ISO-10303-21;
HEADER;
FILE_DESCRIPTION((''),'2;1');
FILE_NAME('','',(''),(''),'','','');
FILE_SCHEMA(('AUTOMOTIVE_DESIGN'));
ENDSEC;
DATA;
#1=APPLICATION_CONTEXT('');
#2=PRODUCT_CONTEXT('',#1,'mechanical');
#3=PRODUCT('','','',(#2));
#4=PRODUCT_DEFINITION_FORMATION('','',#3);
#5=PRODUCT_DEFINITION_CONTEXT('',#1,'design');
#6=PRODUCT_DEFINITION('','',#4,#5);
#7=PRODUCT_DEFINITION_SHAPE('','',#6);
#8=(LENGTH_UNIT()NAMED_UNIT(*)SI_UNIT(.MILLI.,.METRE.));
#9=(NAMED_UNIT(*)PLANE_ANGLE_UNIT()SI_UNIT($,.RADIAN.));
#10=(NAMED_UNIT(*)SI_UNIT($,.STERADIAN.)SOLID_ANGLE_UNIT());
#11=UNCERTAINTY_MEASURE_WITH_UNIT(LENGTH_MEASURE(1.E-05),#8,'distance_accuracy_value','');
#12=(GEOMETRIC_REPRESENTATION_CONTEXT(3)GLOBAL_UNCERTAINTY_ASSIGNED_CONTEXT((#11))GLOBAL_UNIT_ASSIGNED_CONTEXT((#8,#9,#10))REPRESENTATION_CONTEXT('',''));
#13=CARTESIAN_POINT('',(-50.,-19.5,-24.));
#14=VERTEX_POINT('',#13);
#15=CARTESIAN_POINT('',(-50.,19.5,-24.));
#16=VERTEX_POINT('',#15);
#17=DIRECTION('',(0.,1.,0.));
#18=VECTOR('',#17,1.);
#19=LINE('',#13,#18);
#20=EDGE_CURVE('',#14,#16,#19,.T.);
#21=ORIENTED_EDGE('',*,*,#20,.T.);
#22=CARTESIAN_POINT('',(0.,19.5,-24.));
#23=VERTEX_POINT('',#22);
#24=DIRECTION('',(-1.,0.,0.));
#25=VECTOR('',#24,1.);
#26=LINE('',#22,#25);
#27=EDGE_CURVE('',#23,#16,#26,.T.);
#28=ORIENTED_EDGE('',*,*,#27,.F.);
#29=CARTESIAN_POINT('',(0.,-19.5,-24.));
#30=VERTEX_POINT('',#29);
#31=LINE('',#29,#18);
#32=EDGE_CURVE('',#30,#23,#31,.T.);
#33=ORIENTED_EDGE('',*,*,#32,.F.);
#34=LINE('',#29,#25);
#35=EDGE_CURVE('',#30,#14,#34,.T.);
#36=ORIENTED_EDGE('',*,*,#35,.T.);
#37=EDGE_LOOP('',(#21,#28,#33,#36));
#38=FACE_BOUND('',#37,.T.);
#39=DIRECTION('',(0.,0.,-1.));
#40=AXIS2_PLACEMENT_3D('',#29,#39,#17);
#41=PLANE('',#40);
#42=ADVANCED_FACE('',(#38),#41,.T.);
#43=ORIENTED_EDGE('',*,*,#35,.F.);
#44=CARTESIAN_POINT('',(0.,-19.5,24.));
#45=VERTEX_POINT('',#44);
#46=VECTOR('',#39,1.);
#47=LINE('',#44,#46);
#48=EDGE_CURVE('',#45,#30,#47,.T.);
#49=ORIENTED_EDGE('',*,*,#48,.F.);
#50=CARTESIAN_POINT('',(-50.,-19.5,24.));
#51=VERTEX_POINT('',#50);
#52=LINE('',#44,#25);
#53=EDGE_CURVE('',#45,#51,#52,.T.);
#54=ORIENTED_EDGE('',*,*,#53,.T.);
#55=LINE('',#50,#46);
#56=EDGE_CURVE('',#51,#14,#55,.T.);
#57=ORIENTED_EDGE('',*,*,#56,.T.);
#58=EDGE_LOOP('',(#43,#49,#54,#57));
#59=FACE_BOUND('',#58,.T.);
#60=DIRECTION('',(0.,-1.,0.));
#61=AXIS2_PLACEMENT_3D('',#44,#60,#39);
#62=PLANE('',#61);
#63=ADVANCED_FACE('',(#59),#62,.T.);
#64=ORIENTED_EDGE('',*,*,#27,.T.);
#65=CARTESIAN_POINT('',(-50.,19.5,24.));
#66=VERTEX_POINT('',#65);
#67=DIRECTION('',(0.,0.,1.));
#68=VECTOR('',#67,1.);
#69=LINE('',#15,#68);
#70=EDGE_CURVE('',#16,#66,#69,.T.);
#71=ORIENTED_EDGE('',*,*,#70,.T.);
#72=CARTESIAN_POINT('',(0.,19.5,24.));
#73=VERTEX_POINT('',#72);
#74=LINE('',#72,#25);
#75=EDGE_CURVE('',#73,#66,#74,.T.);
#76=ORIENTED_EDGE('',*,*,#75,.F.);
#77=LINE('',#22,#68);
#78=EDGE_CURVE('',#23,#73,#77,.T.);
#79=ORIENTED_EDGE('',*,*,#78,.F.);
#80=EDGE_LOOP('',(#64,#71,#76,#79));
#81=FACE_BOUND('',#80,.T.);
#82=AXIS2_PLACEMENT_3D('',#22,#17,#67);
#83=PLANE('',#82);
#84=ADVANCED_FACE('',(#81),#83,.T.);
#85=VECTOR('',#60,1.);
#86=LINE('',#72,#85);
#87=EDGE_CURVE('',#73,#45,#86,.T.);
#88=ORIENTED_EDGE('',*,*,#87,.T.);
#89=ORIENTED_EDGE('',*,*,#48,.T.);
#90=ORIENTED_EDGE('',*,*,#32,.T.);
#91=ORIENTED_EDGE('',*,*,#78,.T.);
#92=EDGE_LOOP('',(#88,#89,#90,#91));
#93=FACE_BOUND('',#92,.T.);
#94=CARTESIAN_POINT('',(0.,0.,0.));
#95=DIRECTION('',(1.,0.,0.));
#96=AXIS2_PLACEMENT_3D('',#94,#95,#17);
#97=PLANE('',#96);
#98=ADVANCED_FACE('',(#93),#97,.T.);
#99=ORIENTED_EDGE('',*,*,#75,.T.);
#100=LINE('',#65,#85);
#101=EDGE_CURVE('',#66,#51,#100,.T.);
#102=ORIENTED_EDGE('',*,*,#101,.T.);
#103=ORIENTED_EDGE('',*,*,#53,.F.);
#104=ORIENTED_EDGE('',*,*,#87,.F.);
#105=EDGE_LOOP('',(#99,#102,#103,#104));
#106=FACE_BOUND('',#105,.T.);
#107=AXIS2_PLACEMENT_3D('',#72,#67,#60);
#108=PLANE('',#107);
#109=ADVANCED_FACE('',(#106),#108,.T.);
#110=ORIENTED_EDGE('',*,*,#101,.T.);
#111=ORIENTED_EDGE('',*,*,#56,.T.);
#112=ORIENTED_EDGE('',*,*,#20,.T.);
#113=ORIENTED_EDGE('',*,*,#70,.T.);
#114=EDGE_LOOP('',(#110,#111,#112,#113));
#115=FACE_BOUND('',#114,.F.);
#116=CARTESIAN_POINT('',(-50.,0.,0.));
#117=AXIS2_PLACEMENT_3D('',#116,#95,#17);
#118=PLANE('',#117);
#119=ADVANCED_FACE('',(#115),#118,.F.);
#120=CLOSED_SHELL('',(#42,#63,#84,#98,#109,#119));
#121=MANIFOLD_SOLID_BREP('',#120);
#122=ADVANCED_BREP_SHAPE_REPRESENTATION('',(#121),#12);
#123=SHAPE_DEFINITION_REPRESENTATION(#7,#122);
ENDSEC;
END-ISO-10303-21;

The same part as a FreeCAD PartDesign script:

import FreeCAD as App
import Part
import Sketcher

V = App.Vector
Q = App.Units.Quantity


def add_polygon(sketch, points):
    """Adds a closed chain of lines whose ends are joined by coincident constraints."""
    first, n = sketch.GeometryCount, len(points)
    for a, b in zip(points, points[1:] + points[:1]):
        sketch.addGeometry(Part.LineSegment(App.Vector(*a, 0), App.Vector(*b, 0)), False)
    for i in range(n):
        sketch.addConstraint(Sketcher.Constraint("Coincident", first + i, 2, first + (i + 1) % n, 1))

doc = App.newDocument("Part")
params = doc.addObject("Spreadsheet::Sheet", "Params")
for row, (alias, value) in enumerate([
    ("sketch1_width", "39 mm"),
    ("sketch1_height", "48 mm"),
    ("pad1_length", "50 mm"),
], start=1):
    params.set(f"A{row}", alias)
    params.set(f"B{row}", "=" + value)
    params.setAlias(f"B{row}", alias)

body = doc.addObject("PartDesign::Body", "Body")

# Sketch on YZ plane
sketch1 = body.newObject("Sketcher::SketchObject", "Sketch")
sketch1.AttachmentSupport = (doc.getObject("YZ_Plane"), [""])
sketch1.MapMode = "FlatFace"
add_polygon(sketch1, [(-20, 24), (-20, -24), (20, -24), (20, 24)])  # lines 0-3
sketch1.addConstraint(Sketcher.Constraint("Vertical", 0))
sketch1.addConstraint(Sketcher.Constraint("Horizontal", 1))
sketch1.addConstraint(Sketcher.Constraint("Vertical", 2))
sketch1.addConstraint(Sketcher.Constraint("Horizontal", 3))
sketch1.addConstraint(Sketcher.Constraint("Symmetric", 0, 2, 2, 2, -1, 1))
sketch1.addConstraint(Sketcher.Constraint("DistanceX", 1, 1, 1, 2, Q("39 mm")))
sketch1.addConstraint(Sketcher.Constraint("DistanceY", 0, 2, 0, 1, Q("48 mm")))
sketch1.setExpression("Constraints[9]", "Params.sketch1_width")
sketch1.setExpression("Constraints[10]", "Params.sketch1_height")
pad1 = body.newObject("PartDesign::Pad", "Pad")
pad1.Profile = sketch1
pad1.setExpression("Length", "Params.pad1_length")
pad1.Reversed = True

doc.recompute()
